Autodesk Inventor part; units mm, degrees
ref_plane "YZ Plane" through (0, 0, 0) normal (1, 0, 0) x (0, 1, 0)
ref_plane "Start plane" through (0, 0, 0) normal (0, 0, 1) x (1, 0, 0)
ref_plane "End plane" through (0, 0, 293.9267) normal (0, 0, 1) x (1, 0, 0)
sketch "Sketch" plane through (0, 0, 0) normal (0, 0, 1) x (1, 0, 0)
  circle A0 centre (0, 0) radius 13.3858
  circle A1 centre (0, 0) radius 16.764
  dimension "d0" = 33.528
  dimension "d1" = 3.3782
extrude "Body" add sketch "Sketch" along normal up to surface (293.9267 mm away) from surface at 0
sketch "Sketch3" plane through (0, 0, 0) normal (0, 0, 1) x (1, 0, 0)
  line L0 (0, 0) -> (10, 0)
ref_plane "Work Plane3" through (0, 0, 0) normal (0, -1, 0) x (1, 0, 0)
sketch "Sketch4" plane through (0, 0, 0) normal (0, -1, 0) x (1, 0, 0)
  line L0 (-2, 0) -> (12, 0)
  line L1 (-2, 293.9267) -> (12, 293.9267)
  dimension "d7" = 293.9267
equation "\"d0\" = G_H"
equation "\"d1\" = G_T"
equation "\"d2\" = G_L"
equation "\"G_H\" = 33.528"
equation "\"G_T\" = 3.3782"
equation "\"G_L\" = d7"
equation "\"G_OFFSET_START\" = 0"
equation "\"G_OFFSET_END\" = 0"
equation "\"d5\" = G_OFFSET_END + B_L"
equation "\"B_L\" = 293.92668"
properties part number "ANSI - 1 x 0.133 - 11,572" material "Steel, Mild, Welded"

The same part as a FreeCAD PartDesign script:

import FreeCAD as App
import Part
import Sketcher
Q = App.Units.Quantity

doc = App.newDocument("Part")
params = doc.addObject("Spreadsheet::Sheet", "Params")
for row, (alias, value) in enumerate([
    ("sketch1_diameter", "1.32 in"),
    ("sketch1_diameter2", "1.054 in"),
    ("pad1_length", "293.9267 mm"),
], start=1):
    params.set(f"A{row}", alias)
    params.set(f"B{row}", "=" + value)
    params.setAlias(f"B{row}", alias)

body = doc.addObject("PartDesign::Body", "Body")

# Sketch on XY plane
sketch1 = body.newObject("Sketcher::SketchObject", "Sketch")
sketch1.AttachmentSupport = (doc.getObject("XY_Plane"), [""])
sketch1.MapMode = "FlatFace"
sketch1.addGeometry([
    Part.Circle(App.Vector(0, 0, 0), App.Vector(0, 0, 1), 17),
    Part.Circle(App.Vector(0, 0, 0), App.Vector(0, 0, 1), 13),
], False)
sketch1.addConstraint([
    Sketcher.Constraint("Coincident", 0, 3, -1, 1),
    Sketcher.Constraint("Coincident", 1, 3, -1, 1),
    Sketcher.Constraint("Diameter", 0, Q("1.32 in")),
    Sketcher.Constraint("Diameter", 1, Q("1.054 in")),
])
sketch1.setExpression("Constraints[2]", "Params.sketch1_diameter")
sketch1.setExpression("Constraints[3]", "Params.sketch1_diameter2")
pad1 = body.newObject("PartDesign::Pad", "Pad")
pad1.Profile = sketch1
pad1.setExpression("Length", "Params.pad1_length")

doc.recompute()
